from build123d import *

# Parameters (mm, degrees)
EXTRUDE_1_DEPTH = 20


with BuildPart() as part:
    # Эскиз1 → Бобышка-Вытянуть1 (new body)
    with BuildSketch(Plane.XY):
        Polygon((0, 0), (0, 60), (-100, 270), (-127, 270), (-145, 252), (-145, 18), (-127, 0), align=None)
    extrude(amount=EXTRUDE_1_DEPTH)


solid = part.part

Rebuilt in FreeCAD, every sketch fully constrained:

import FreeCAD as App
import Part
import Sketcher

V = App.Vector
Q = App.Units.Quantity

doc = App.newDocument("Part")
body = doc.addObject("PartDesign::Body", "Body")

sketch1 = body.newObject("Sketcher::SketchObject", "Sketch")
sketch1.AttachmentSupport = (doc.getObject("XY_Plane"), [""])
sketch1.MapMode = "FlatFace"
sketch1.addGeometry([
    Part.LineSegment(V(0, 0, 0), V(0, 60, 0)),
    Part.LineSegment(V(0, 60, 0), V(-100, 270, 0)),
    Part.LineSegment(V(-100, 270, 0), V(-127, 270, 0)),
    Part.LineSegment(V(-127, 270, 0), V(-145, 252, 0)),
    Part.LineSegment(V(-145, 252, 0), V(-145, 18, 0)),
    Part.LineSegment(V(-145, 18, 0), V(-127, 0, 0)),
    Part.LineSegment(V(-127, 0, 0), V(0, 0, 0)),
], False)
sketch1.addConstraint([
    Sketcher.Constraint("Coincident", 0, 2, 1, 1),
    Sketcher.Constraint("Coincident", 1, 2, 2, 1),
    Sketcher.Constraint("Coincident", 2, 2, 3, 1),
    Sketcher.Constraint("Coincident", 3, 2, 4, 1),
    Sketcher.Constraint("Coincident", 4, 2, 5, 1),
    Sketcher.Constraint("Coincident", 5, 2, 6, 1),
    Sketcher.Constraint("Coincident", 6, 2, 0, 1),
    Sketcher.Constraint("Vertical", 0),
    Sketcher.Constraint("Horizontal", 2),
    Sketcher.Constraint("Vertical", 4),
    Sketcher.Constraint("Horizontal", 6),
    Sketcher.Constraint("Coincident", 6, 2, -1, 1),
    Sketcher.Constraint("Perpendicular", 3, 5),
    Sketcher.Constraint("Vertical", 2, 2, 5, 2),
    Sketcher.Constraint("Equal", 3, 5),
    Sketcher.Constraint("DistanceX", 2, 2, 2, 1, Q("27 mm")),
    Sketcher.Constraint("DistanceX", 6, 1, 6, 2, Q("127 mm")),
    Sketcher.Constraint("DistanceY", 0, 1, 0, 2, Q("60 mm")),
    Sketcher.Constraint("DistanceY", 4, 2, 4, 1, Q("234 mm")),
    Sketcher.Constraint("DistanceY", -1, 1, 1, 2, Q("270 mm")),
])
pad1 = body.newObject("PartDesign::Pad", "Pad")
pad1.Profile = sketch1
pad1.Length = 20

doc.recompute()
